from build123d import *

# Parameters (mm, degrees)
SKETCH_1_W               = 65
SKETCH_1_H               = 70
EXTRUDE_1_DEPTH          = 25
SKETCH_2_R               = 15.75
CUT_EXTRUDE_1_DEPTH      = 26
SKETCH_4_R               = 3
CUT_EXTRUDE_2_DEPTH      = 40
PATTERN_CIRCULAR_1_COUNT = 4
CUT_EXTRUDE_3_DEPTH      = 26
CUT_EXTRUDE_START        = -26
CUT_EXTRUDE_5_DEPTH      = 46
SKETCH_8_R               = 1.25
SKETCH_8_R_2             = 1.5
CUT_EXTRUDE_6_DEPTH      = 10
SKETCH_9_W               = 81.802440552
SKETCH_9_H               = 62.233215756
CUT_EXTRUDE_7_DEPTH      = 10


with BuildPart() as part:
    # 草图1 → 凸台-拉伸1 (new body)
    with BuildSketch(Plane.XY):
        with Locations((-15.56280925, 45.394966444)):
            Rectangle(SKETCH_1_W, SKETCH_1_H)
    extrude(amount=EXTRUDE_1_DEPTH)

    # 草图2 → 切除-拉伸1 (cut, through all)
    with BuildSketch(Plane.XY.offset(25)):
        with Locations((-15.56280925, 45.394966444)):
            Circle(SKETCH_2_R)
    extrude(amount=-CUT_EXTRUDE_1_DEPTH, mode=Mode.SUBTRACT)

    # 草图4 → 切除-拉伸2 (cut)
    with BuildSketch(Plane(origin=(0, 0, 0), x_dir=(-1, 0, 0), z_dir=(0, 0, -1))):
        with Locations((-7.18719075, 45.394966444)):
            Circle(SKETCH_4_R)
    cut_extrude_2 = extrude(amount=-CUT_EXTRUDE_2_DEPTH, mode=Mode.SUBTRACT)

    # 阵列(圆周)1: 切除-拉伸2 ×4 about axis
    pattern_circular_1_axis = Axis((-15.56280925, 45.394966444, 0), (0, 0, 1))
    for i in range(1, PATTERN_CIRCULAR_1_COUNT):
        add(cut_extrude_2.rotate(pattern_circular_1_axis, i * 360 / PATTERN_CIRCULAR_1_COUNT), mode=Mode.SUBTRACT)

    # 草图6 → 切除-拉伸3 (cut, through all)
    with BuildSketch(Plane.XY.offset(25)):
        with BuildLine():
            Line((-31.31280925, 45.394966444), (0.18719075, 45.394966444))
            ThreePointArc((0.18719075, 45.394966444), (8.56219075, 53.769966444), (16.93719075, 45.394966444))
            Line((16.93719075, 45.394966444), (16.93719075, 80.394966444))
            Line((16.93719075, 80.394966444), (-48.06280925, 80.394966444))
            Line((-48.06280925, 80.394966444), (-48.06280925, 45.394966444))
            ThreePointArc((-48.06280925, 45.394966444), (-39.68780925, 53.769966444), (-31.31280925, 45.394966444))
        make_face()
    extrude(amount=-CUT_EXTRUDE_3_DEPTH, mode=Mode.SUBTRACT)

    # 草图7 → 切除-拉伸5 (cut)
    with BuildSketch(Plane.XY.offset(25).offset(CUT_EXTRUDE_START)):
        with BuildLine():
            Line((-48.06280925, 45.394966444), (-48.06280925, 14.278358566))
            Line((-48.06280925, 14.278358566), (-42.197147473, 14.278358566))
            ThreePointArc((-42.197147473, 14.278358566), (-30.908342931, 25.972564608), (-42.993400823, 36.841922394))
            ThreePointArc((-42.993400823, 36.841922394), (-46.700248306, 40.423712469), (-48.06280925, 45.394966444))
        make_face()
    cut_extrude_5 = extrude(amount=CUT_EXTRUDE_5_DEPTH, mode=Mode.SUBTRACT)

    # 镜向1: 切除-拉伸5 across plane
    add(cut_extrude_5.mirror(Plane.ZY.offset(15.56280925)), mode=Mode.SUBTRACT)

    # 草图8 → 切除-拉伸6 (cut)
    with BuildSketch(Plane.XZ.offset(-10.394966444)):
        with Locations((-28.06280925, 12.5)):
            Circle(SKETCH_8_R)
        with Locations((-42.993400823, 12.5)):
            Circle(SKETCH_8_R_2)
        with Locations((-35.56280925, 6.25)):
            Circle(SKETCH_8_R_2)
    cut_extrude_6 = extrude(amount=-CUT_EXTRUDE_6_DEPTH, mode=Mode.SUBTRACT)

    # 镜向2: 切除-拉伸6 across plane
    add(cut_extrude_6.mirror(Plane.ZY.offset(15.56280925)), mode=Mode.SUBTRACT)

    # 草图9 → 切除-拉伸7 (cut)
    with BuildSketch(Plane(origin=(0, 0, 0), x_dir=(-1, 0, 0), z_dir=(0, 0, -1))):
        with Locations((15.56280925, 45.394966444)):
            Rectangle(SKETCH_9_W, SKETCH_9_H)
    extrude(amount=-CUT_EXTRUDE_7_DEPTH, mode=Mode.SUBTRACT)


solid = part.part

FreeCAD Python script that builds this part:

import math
import FreeCAD as App
import Part
import Sketcher
Q = App.Units.Quantity

doc = App.newDocument("Part")
body = doc.addObject("PartDesign::Body", "Body")

# Sketch on XY plane
sketch1 = body.newObject("Sketcher::SketchObject", "Sketch")
sketch1.AttachmentSupport = (doc.getObject("XY_Plane"), [""])
sketch1.MapMode = "FlatFace"
sketch1.addGeometry([
    Part.LineSegment(App.Vector(-48, 80, 0), App.Vector(-48, 10, 0)),
    Part.LineSegment(App.Vector(-48, 10, 0), App.Vector(17, 10, 0)),
    Part.LineSegment(App.Vector(17, 10, 0), App.Vector(17, 80, 0)),
    Part.LineSegment(App.Vector(17, 80, 0), App.Vector(-48, 80, 0)),
], False)
sketch1.addConstraint([
    Sketcher.Constraint("Coincident", 0, 2, 1, 1),
    Sketcher.Constraint("Coincident", 1, 2, 2, 1),
    Sketcher.Constraint("Coincident", 2, 2, 3, 1),
    Sketcher.Constraint("Coincident", 3, 2, 0, 1),
    Sketcher.Constraint("Vertical", 0),
    Sketcher.Constraint("Horizontal", 1),
    Sketcher.Constraint("Vertical", 2),
    Sketcher.Constraint("Horizontal", 3),
    Sketcher.Constraint("DistanceX", 1, 1, 1, 2, Q("65 mm")),
    Sketcher.Constraint("DistanceY", 0, 2, 0, 1, Q("70 mm")),
    Sketcher.Constraint("DistanceX", 0, 2, -1, 1, Q("48.062809 mm")),
    Sketcher.Constraint("DistanceY", -1, 1, 0, 2, Q("10.394966 mm")),
])
pad1 = body.newObject("PartDesign::Pad", "Pad")
pad1.Profile = sketch1
pad1.Length = 25

# Sketch on XY plane
sketch2 = body.newObject("Sketcher::SketchObject", "Sketch001")
sketch2.AttachmentSupport = (doc.getObject("XY_Plane"), [""])
sketch2.MapMode = "FlatFace"
sketch2.AttachmentOffset = App.Placement(App.Vector(0, 0, 25), App.Rotation())
sketch2.addGeometry(Part.Circle(App.Vector(-16, 45, 0), App.Vector(0, 0, 1), 16), False)
sketch2.addConstraint([
    Sketcher.Constraint("Diameter", 0, Q("31.5 mm")),
    Sketcher.Constraint("DistanceX", 0, 3, -1, 1, Q("15.562809 mm")),
    Sketcher.Constraint("DistanceY", -1, 1, 0, 3, Q("45.394966 mm")),
])
pocket1 = body.newObject("PartDesign::Pocket", "Pocket")
pocket1.Profile = sketch2
pocket1.Type = "ThroughAll"

# Sketch on XY plane
sketch3 = body.newObject("Sketcher::SketchObject", "Sketch002")
sketch3.AttachmentSupport = (doc.getObject("XY_Plane"), [""])
sketch3.MapMode = "FlatFace"
sketch3.addGeometry(Part.Circle(App.Vector(7.2, 45.4, 0), App.Vector(0, 0, 1), 3), False)
sketch3.addConstraint([
    Sketcher.Constraint("Diameter", 0, Q("6 mm")),
    Sketcher.Constraint("DistanceX", -1, 1, 0, 3, Q("7.187191 mm")),
    Sketcher.Constraint("DistanceY", -1, 1, 0, 3, Q("45.394966 mm")),
])
pocket2 = body.newObject("PartDesign::Pocket", "Pocket001")
pocket2.Profile = sketch3
pocket2.Length = 40
pocket2.Reversed = True
doc.recompute()

datumline = body.newObject("PartDesign::Line", "DatumLine")
datumline.Placement = App.Placement(App.Vector(-15.562809, 45.394966, 0), App.Rotation(App.Vector(0, 0, 1), App.Vector(0, 0, 1)))
polarpattern = body.newObject("PartDesign::PolarPattern", "PolarPattern")
polarpattern.Originals = [pocket2]
polarpattern.Axis = (datumline, [""])
polarpattern.Angle = 360
polarpattern.Occurrences = 4
body.Tip = polarpattern

# Sketch on XY plane
sketch4 = body.newObject("Sketcher::SketchObject", "Sketch003")
sketch4.AttachmentSupport = (doc.getObject("XY_Plane"), [""])
sketch4.MapMode = "FlatFace"
sketch4.AttachmentOffset = App.Placement(App.Vector(0, 0, 25), App.Rotation())
sketch4.addGeometry([
    Part.LineSegment(App.Vector(-31, 45, 0), App.Vector(0, 45, 0)),  # 0
    Part.ArcOfCircle(Part.Circle(App.Vector(9, 45, 0), App.Vector(0, 0, 1), 8), math.radians(0), math.radians(180)),  # 1
    Part.LineSegment(App.Vector(17, 45, 0), App.Vector(17, 80, 0)),  # 2
    Part.LineSegment(App.Vector(17, 80, 0), App.Vector(-48, 80, 0)),  # 3
    Part.LineSegment(App.Vector(-48, 80, 0), App.Vector(-48, 45, 0)),  # 4
    Part.ArcOfCircle(Part.Circle(App.Vector(-40, 45, 0), App.Vector(0, 0, 1), 8), math.radians(0), math.radians(180)),  # 5
], False)
sketch4.addConstraint([
    Sketcher.Constraint("Coincident", 0, 2, 1, 2),
    Sketcher.Constraint("Tangent", 1, 1, 2, 1),
    Sketcher.Constraint("Coincident", 2, 2, 3, 1),
    Sketcher.Constraint("Coincident", 3, 2, 4, 1),
    Sketcher.Constraint("Tangent", 4, 2, 5, 2),
    Sketcher.Constraint("Coincident", 5, 1, 0, 1),
    Sketcher.Constraint("Horizontal", 0),
    Sketcher.Constraint("Vertical", 2),
    Sketcher.Constraint("Horizontal", 3),
    Sketcher.Constraint("Vertical", 4),
    Sketcher.Constraint("Equal", 1, 5),
    Sketcher.Constraint("Horizontal", 1, 3, 5, 3),
    Sketcher.Constraint("Horizontal", 5, 3, 0, 2),
    Sketcher.Constraint("DistanceX", 3, 2, 3, 1, Q("65 mm")),
    Sketcher.Constraint("DistanceY", 2, 1, 2, 2, Q("35 mm")),
    Sketcher.Constraint("DistanceX", 0, 1, 0, 2, Q("31.5 mm")),
    Sketcher.Constraint("DistanceX", -1, 1, 1, 3, Q("8.562191 mm")),
    Sketcher.Constraint("DistanceY", -1, 1, 1, 3, Q("45.394966 mm")),
])
pocket3 = body.newObject("PartDesign::Pocket", "Pocket002")
pocket3.Profile = sketch4
pocket3.Type = "ThroughAll"

# Sketch on XY plane
sketch5 = body.newObject("Sketcher::SketchObject", "Sketch004")
sketch5.AttachmentSupport = (doc.getObject("XY_Plane"), [""])
sketch5.MapMode = "FlatFace"
sketch5.AttachmentOffset = App.Placement(App.Vector(0, 0, -1), App.Rotation())
sketch5.addGeometry([
    Part.LineSegment(App.Vector(-48, 45, 0), App.Vector(-48, 14, 0)),
    Part.LineSegment(App.Vector(-48, 14, 0), App.Vector(-42, 14, 0)),
    Part.ArcOfCircle(Part.Circle(App.Vector(-42, 26, 0), App.Vector(0, 0, 1), 11), math.radians(-90), math.radians(94)),
    Part.ArcOfCircle(Part.Circle(App.Vector(-38, 45, 0), App.Vector(0, 0, 1), 10), math.radians(180), math.radians(241)),
], False)
sketch5.addConstraint([
    Sketcher.Constraint("Coincident", 0, 2, 1, 1),
    Sketcher.Constraint("Tangent", 1, 2, 2, 1),
    Sketcher.Constraint("Coincident", 2, 2, 3, 2),
    Sketcher.Constraint("Tangent", 3, 1, 0, 1),
    Sketcher.Constraint("Vertical", 0),
    Sketcher.Constraint("Horizontal", 1),
    Sketcher.Constraint("Radius", 3, Q("9.75 mm")),
    Sketcher.Constraint("Radius", 2, Q("11.295832 mm")),
    Sketcher.Constraint("DistanceX", 1, 1, 1, 2, Q("5.865662 mm")),
    Sketcher.Constraint("DistanceX", 2, 2, -1, 1, Q("42.993401 mm")),
    Sketcher.Constraint("DistanceY", 0, 2, 0, 1, Q("31.116608 mm")),
    Sketcher.Constraint("DistanceY", -1, 1, 2, 3, Q("25.57419 mm")),
])
pocket4 = body.newObject("PartDesign::Pocket", "Pocket003")
pocket4.Profile = sketch5
pocket4.Length = 46
pocket4.Reversed = True
doc.recompute()

datumplane = body.newObject("PartDesign::Plane", "DatumPlane")
datumplane.AttachmentSupport = (doc.getObject("YZ_Plane"), [""])
datumplane.MapMode = "FlatFace"
datumplane.AttachmentOffset = App.Placement(App.Vector(0, 0, -15.562809), App.Rotation())
mirrored = body.newObject("PartDesign::Mirrored", "Mirrored")
mirrored.Originals = [pocket4]
mirrored.MirrorPlane = (datumplane, [""])
body.Tip = mirrored

# Sketch on XZ plane
sketch6 = body.newObject("Sketcher::SketchObject", "Sketch005")
sketch6.AttachmentSupport = (doc.getObject("XZ_Plane"), [""])
sketch6.MapMode = "FlatFace"
sketch6.AttachmentOffset = App.Placement(App.Vector(0, 0, -10.394966), App.Rotation())
sketch6.addGeometry([
    Part.Circle(App.Vector(-28.1, 12.5, 0), App.Vector(0, 0, 1), 1.2),
    Part.Circle(App.Vector(-43, 12.5, 0), App.Vector(0, 0, 1), 1.5),
    Part.Circle(App.Vector(-35.6, 6.2, 0), App.Vector(0, 0, 1), 1.5),
], False)
sketch6.addConstraint([
    Sketcher.Constraint("Equal", 1, 2),
    Sketcher.Constraint("Horizontal", 0, 3, 1, 3),
    Sketcher.Constraint("Diameter", 1, Q("3 mm")),
    Sketcher.Constraint("Diameter", 0, Q("2.5 mm")),
    Sketcher.Constraint("DistanceY", -1, 1, 0, 3, Q("12.5 mm")),
    Sketcher.Constraint("DistanceX", 2, 3, 0, 3, Q("7.5 mm")),
    Sketcher.Constraint("DistanceY", -1, 1, 2, 3, Q("6.25 mm")),
    Sketcher.Constraint("DistanceX", 1, 3, -1, 1, Q("42.993401 mm")),
    Sketcher.Constraint("DistanceX", 0, 3, -1, 1, Q("28.062809 mm")),
])
pocket5 = body.newObject("PartDesign::Pocket", "Pocket004")
pocket5.Profile = sketch6
pocket5.Length = 10
doc.recompute()

datumplane2 = body.newObject("PartDesign::Plane", "DatumPlane001")
datumplane2.AttachmentSupport = (doc.getObject("YZ_Plane"), [""])
datumplane2.MapMode = "FlatFace"
datumplane2.AttachmentOffset = App.Placement(App.Vector(0, 0, -15.562809), App.Rotation())
mirrored2 = body.newObject("PartDesign::Mirrored", "Mirrored001")
mirrored2.Originals = [pocket5]
mirrored2.MirrorPlane = (datumplane2, [""])
body.Tip = mirrored2

# Sketch on XY plane
sketch7 = body.newObject("Sketcher::SketchObject", "Sketch006")
sketch7.AttachmentSupport = (doc.getObject("XY_Plane"), [""])
sketch7.MapMode = "FlatFace"
sketch7.addGeometry([
    Part.LineSegment(App.Vector(25, 77, 0), App.Vector(25, 14, 0)),
    Part.LineSegment(App.Vector(25, 14, 0), App.Vector(-56, 14, 0)),
    Part.LineSegment(App.Vector(-56, 14, 0), App.Vector(-56, 77, 0)),
    Part.LineSegment(App.Vector(-56, 77, 0), App.Vector(25, 77, 0)),
], False)
sketch7.addConstraint([
    Sketcher.Constraint("Coincident", 0, 2, 1, 1),
    Sketcher.Constraint("Coincident", 1, 2, 2, 1),
    Sketcher.Constraint("Coincident", 2, 2, 3, 1),
    Sketcher.Constraint("Coincident", 3, 2, 0, 1),
    Sketcher.Constraint("Vertical", 0),
    Sketcher.Constraint("Horizontal", 1),
    Sketcher.Constraint("Vertical", 2),
    Sketcher.Constraint("Horizontal", 3),
    Sketcher.Constraint("DistanceX", 1, 2, 1, 1, Q("81.802441 mm")),
    Sketcher.Constraint("DistanceY", 0, 2, 0, 1, Q("62.233216 mm")),
    Sketcher.Constraint("DistanceX", -1, 1, 0, 2, Q("25.338411 mm")),
    Sketcher.Constraint("DistanceY", -1, 1, 0, 2, Q("14.278359 mm")),
])
pocket6 = body.newObject("PartDesign::Pocket", "Pocket005")
pocket6.Profile = sketch7
pocket6.Length = 10
pocket6.Reversed = True

doc.recompute()
